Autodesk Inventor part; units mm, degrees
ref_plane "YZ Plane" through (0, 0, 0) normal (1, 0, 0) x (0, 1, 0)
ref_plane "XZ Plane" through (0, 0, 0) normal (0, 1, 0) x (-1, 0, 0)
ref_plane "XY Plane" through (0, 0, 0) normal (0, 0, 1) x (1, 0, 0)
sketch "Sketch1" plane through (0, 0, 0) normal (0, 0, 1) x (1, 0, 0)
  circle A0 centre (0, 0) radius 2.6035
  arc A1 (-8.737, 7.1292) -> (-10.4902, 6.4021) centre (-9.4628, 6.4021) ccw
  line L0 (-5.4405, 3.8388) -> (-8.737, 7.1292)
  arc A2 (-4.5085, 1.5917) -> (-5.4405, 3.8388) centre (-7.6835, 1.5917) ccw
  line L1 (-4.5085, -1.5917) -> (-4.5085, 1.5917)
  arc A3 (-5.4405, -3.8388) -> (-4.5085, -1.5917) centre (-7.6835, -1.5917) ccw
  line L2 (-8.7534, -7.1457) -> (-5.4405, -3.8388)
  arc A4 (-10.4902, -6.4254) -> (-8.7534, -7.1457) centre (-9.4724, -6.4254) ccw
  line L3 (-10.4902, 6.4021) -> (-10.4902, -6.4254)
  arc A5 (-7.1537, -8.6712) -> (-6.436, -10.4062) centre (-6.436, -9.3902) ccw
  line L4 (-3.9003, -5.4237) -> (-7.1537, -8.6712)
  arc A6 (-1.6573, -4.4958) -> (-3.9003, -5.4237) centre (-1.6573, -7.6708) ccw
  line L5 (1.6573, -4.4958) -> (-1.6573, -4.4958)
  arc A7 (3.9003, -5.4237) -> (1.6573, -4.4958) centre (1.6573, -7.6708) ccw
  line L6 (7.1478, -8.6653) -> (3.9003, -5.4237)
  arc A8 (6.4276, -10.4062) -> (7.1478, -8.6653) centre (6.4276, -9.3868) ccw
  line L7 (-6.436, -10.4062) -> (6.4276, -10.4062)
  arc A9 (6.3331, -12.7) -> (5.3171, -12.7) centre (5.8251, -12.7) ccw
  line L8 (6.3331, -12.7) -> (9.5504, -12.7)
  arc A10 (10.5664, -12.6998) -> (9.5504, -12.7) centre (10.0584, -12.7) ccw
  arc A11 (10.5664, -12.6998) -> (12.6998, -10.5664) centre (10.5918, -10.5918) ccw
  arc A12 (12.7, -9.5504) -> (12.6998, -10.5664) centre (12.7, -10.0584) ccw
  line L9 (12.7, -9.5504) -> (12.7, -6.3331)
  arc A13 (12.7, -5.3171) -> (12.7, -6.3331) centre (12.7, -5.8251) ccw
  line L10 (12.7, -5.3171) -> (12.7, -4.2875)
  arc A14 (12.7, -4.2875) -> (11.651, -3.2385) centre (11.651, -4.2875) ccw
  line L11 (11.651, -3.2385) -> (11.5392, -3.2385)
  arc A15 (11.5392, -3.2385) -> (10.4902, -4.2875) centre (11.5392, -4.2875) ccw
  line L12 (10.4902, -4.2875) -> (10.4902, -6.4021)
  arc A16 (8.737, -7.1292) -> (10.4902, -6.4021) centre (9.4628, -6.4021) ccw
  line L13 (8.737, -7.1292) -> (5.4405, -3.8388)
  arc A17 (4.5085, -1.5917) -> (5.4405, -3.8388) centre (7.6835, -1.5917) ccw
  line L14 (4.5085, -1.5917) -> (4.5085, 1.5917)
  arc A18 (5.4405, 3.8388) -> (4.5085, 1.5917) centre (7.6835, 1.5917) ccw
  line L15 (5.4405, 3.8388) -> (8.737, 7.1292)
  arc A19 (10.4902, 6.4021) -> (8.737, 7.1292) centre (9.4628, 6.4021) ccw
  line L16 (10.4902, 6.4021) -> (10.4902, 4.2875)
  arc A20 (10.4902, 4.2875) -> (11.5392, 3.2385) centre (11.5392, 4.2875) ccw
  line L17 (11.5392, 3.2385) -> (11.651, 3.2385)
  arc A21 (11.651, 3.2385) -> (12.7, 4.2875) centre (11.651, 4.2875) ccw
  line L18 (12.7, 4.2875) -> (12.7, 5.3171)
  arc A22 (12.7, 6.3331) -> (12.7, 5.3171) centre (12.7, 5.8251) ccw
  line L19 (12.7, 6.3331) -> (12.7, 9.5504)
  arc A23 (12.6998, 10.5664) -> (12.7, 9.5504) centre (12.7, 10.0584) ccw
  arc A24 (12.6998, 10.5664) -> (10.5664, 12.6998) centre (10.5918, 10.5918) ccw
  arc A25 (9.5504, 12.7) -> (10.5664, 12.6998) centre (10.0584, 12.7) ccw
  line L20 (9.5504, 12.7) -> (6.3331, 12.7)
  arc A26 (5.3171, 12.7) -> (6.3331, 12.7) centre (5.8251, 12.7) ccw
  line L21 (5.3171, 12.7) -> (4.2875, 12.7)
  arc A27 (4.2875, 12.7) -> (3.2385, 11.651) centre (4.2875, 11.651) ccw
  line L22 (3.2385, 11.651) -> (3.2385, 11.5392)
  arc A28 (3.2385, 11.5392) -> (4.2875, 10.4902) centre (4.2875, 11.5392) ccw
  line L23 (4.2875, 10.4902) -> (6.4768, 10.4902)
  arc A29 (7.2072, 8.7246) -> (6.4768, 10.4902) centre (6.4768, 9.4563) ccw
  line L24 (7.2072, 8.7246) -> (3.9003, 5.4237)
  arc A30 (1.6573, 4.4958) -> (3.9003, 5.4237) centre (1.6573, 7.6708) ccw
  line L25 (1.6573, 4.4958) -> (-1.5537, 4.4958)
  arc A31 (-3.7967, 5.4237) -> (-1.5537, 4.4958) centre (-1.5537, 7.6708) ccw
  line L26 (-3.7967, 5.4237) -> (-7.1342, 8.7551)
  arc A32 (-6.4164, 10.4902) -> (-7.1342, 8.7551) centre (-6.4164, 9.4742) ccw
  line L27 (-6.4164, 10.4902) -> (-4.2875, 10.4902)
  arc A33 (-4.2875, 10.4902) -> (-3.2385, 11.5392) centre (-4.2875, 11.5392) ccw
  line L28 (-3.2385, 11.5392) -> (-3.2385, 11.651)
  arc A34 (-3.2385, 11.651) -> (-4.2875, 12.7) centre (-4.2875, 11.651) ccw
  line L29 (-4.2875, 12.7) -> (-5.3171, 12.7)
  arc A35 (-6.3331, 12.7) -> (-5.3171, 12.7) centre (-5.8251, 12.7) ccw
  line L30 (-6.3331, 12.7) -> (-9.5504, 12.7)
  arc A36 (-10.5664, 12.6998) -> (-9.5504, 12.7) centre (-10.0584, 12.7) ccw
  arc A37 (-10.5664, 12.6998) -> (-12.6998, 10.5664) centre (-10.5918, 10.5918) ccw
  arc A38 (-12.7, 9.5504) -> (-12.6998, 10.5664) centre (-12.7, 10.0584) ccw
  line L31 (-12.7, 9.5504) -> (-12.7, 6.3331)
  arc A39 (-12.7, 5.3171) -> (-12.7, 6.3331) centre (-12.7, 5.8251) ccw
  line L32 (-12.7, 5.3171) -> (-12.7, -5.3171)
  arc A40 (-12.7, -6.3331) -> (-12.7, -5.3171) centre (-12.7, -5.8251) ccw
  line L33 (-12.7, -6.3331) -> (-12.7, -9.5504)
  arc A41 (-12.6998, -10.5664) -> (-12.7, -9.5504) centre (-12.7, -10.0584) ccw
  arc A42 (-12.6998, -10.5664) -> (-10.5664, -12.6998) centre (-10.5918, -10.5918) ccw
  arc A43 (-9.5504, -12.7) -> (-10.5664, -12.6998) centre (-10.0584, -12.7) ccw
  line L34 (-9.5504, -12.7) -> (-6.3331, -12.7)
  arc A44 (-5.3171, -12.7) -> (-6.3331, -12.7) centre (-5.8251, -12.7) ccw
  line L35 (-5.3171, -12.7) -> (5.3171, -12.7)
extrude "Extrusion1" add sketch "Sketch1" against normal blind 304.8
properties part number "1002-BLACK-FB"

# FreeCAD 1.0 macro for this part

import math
import FreeCAD as App
import Part
import Sketcher
from FreeCAD import Vector
Q = App.Units.Quantity

doc = App.newDocument("Part")
body = doc.addObject("PartDesign::Body", "Body")

sketch1 = body.newObject("Sketcher::SketchObject", "Sketch")
sketch1.AttachmentSupport = (doc.getObject("XY_Plane"), [""])
sketch1.MapMode = "FlatFace"
sketch1.addGeometry([
    Part.ArcOfCircle(Part.Circle(Vector(5.83, -12.7, 0), Vector(0, 0, 1), 0.51), math.radians(0), math.radians(180)),
    Part.LineSegment(Vector(6.33, -12.7, 0), Vector(9.55, -12.7, 0)),
    Part.ArcOfCircle(Part.Circle(Vector(10.06, -12.7, 0), Vector(0, 0, 1), 0.51), math.radians(0), math.radians(180)),
    Part.ArcOfCircle(Part.Circle(Vector(10.59, -10.59, 0), Vector(0, 0, 1), 2.11), math.radians(-91), math.radians(1)),
    Part.ArcOfCircle(Part.Circle(Vector(12.7, -10.06, 0), Vector(0, 0, 1), 0.51), math.radians(90), math.radians(270)),
    Part.LineSegment(Vector(12.7, -9.55, 0), Vector(12.7, -6.33, 0)),
    Part.ArcOfCircle(Part.Circle(Vector(12.7, -5.83, 0), Vector(0, 0, 1), 0.51), math.radians(90), math.radians(270)),
    Part.LineSegment(Vector(12.7, -5.32, 0), Vector(12.7, -4.29, 0)),
    Part.ArcOfCircle(Part.Circle(Vector(11.65, -4.29, 0), Vector(0, 0, 1), 1.05), math.radians(0), math.radians(90)),
    Part.LineSegment(Vector(11.65, -3.24, 0), Vector(11.54, -3.24, 0)),
    Part.ArcOfCircle(Part.Circle(Vector(11.54, -4.29, 0), Vector(0, 0, 1), 1.05), math.radians(90), math.radians(180)),
    Part.LineSegment(Vector(10.49, -4.29, 0), Vector(10.49, -6.4, 0)),
    Part.ArcOfCircle(Part.Circle(Vector(9.46, -6.4, 0), Vector(0, 0, 1), 1.03), math.radians(-135), math.radians(0)),
    Part.LineSegment(Vector(8.74, -7.13, 0), Vector(5.44, -3.84, 0)),
    Part.ArcOfCircle(Part.Circle(Vector(7.68, -1.59, 0), Vector(0, 0, 1), 3.18), math.radians(180), math.radians(225)),
    Part.LineSegment(Vector(4.51, -1.59, 0), Vector(4.51, 1.59, 0)),
    Part.ArcOfCircle(Part.Circle(Vector(7.68, 1.59, 0), Vector(0, 0, 1), 3.17), math.radians(135), math.radians(180)),
    Part.LineSegment(Vector(5.44, 3.84, 0), Vector(8.74, 7.13, 0)),
    Part.ArcOfCircle(Part.Circle(Vector(9.46, 6.4, 0), Vector(0, 0, 1), 1.03), math.radians(0), math.radians(135)),
    Part.LineSegment(Vector(10.49, 6.4, 0), Vector(10.49, 4.29, 0)),
    Part.ArcOfCircle(Part.Circle(Vector(11.54, 4.29, 0), Vector(0, 0, 1), 1.05), math.radians(180), math.radians(270)),
    Part.LineSegment(Vector(11.54, 3.24, 0), Vector(11.65, 3.24, 0)),
    Part.ArcOfCircle(Part.Circle(Vector(11.65, 4.29, 0), Vector(0, 0, 1), 1.05), math.radians(-90), math.radians(0)),
    Part.LineSegment(Vector(12.7, 4.29, 0), Vector(12.7, 5.32, 0)),
    Part.ArcOfCircle(Part.Circle(Vector(12.7, 5.83, 0), Vector(0, 0, 1), 0.51), math.radians(90), math.radians(270)),
    Part.LineSegment(Vector(12.7, 6.33, 0), Vector(12.7, 9.55, 0)),
    Part.ArcOfCircle(Part.Circle(Vector(12.7, 10.06, 0), Vector(0, 0, 1), 0.51), math.radians(90), math.radians(270)),
    Part.ArcOfCircle(Part.Circle(Vector(10.59, 10.59, 0), Vector(0, 0, 1), 2.11), math.radians(-1), math.radians(91)),
    Part.ArcOfCircle(Part.Circle(Vector(10.06, 12.7, 0), Vector(0, 0, 1), 0.51), math.radians(180), math.radians(360)),
    Part.LineSegment(Vector(9.55, 12.7, 0), Vector(6.33, 12.7, 0)),
    Part.ArcOfCircle(Part.Circle(Vector(5.83, 12.7, 0), Vector(0, 0, 1), 0.51), math.radians(180), math.radians(360)),
    Part.LineSegment(Vector(5.32, 12.7, 0), Vector(4.29, 12.7, 0)),
    Part.ArcOfCircle(Part.Circle(Vector(4.29, 11.65, 0), Vector(0, 0, 1), 1.05), math.radians(90), math.radians(180)),
    Part.LineSegment(Vector(3.24, 11.65, 0), Vector(3.24, 11.54, 0)),
    Part.ArcOfCircle(Part.Circle(Vector(4.29, 11.54, 0), Vector(0, 0, 1), 1.05), math.radians(180), math.radians(270)),
    Part.LineSegment(Vector(4.29, 10.49, 0), Vector(6.48, 10.49, 0)),
    Part.ArcOfCircle(Part.Circle(Vector(6.48, 9.46, 0), Vector(0, 0, 1), 1.03), math.radians(-45), math.radians(90)),
    Part.LineSegment(Vector(7.21, 8.72, 0), Vector(3.9, 5.42, 0)),
    Part.ArcOfCircle(Part.Circle(Vector(1.66, 7.67, 0), Vector(0, 0, 1), 3.17), math.radians(-90), math.radians(-45)),
    Part.LineSegment(Vector(1.66, 4.5, 0), Vector(-1.55, 4.5, 0)),
    Part.ArcOfCircle(Part.Circle(Vector(-1.55, 7.67, 0), Vector(0, 0, 1), 3.17), math.radians(-135), math.radians(-90)),
    Part.LineSegment(Vector(-3.8, 5.42, 0), Vector(-7.13, 8.76, 0)),
    Part.ArcOfCircle(Part.Circle(Vector(-6.42, 9.47, 0), Vector(0, 0, 1), 1.02), math.radians(90), math.radians(225)),
    Part.LineSegment(Vector(-6.42, 10.49, 0), Vector(-4.29, 10.49, 0)),
    Part.ArcOfCircle(Part.Circle(Vector(-4.29, 11.54, 0), Vector(0, 0, 1), 1.05), math.radians(-90), math.radians(0)),
    Part.LineSegment(Vector(-3.24, 11.54, 0), Vector(-3.24, 11.65, 0)),
    Part.ArcOfCircle(Part.Circle(Vector(-4.29, 11.65, 0), Vector(0, 0, 1), 1.05), math.radians(0), math.radians(90)),
    Part.LineSegment(Vector(-4.29, 12.7, 0), Vector(-5.32, 12.7, 0)),
    Part.ArcOfCircle(Part.Circle(Vector(-5.83, 12.7, 0), Vector(0, 0, 1), 0.51), math.radians(180), math.radians(360)),
    Part.LineSegment(Vector(-6.33, 12.7, 0), Vector(-9.55, 12.7, 0)),
    Part.ArcOfCircle(Part.Circle(Vector(-10.06, 12.7, 0), Vector(0, 0, 1), 0.51), math.radians(-180), math.radians(0)),
    Part.ArcOfCircle(Part.Circle(Vector(-10.59, 10.59, 0), Vector(0, 0, 1), 2.11), math.radians(89), math.radians(181)),
    Part.ArcOfCircle(Part.Circle(Vector(-12.7, 10.06, 0), Vector(0, 0, 1), 0.51), math.radians(-90), math.radians(90)),
    Part.LineSegment(Vector(-12.7, 9.55, 0), Vector(-12.7, 6.33, 0)),
    Part.ArcOfCircle(Part.Circle(Vector(-12.7, 5.83, 0), Vector(0, 0, 1), 0.51), math.radians(-90), math.radians(90)),
    Part.LineSegment(Vector(-12.7, 5.32, 0), Vector(-12.7, -5.32, 0)),
    Part.ArcOfCircle(Part.Circle(Vector(-12.7, -5.83, 0), Vector(0, 0, 1), 0.51), math.radians(-90), math.radians(90)),
    Part.LineSegment(Vector(-12.7, -6.33, 0), Vector(-12.7, -9.55, 0)),
    Part.ArcOfCircle(Part.Circle(Vector(-12.7, -10.06, 0), Vector(0, 0, 1), 0.51), math.radians(-90), math.radians(90)),
    Part.ArcOfCircle(Part.Circle(Vector(-10.59, -10.59, 0), Vector(0, 0, 1), 2.11), math.radians(179), math.radians(271)),
    Part.ArcOfCircle(Part.Circle(Vector(-10.06, -12.7, 0), Vector(0, 0, 1), 0.51), math.radians(0), math.radians(180)),
    Part.LineSegment(Vector(-9.55, -12.7, 0), Vector(-6.33, -12.7, 0)),
    Part.ArcOfCircle(Part.Circle(Vector(-5.83, -12.7, 0), Vector(0, 0, 1), 0.51), math.radians(0), math.radians(180)),
    Part.LineSegment(Vector(-5.32, -12.7, 0), Vector(5.32, -12.7, 0)),
    Part.ArcOfCircle(Part.Circle(Vector(-6.44, -9.39, 0), Vector(0, 0, 1), 1.02), math.radians(135), math.radians(270)),
    Part.LineSegment(Vector(-7.15, -8.67, 0), Vector(-3.9, -5.42, 0)),
    Part.ArcOfCircle(Part.Circle(Vector(-1.66, -7.67, 0), Vector(0, 0, 1), 3.17), math.radians(90), math.radians(135)),
    Part.LineSegment(Vector(-1.66, -4.5, 0), Vector(1.66, -4.5, 0)),
    Part.ArcOfCircle(Part.Circle(Vector(1.66, -7.67, 0), Vector(0, 0, 1), 3.17), math.radians(45), math.radians(90)),
    Part.LineSegment(Vector(3.9, -5.42, 0), Vector(7.15, -8.67, 0)),
    Part.ArcOfCircle(Part.Circle(Vector(6.43, -9.39, 0), Vector(0, 0, 1), 1.02), math.radians(-90), math.radians(45)),
    Part.LineSegment(Vector(6.43, -10.41, 0), Vector(-6.44, -10.41, 0)),
    Part.ArcOfCircle(Part.Circle(Vector(-9.46, 6.4, 0), Vector(0, 0, 1), 1.03), math.radians(45), math.radians(180)),
    Part.LineSegment(Vector(-8.74, 7.13, 0), Vector(-5.44, 3.84, 0)),
    Part.ArcOfCircle(Part.Circle(Vector(-7.68, 1.59, 0), Vector(0, 0, 1), 3.18), math.radians(0), math.radians(45)),
    Part.LineSegment(Vector(-4.51, 1.59, 0), Vector(-4.51, -1.59, 0)),
    Part.ArcOfCircle(Part.Circle(Vector(-7.68, -1.59, 0), Vector(0, 0, 1), 3.17), math.radians(-45), math.radians(0)),
    Part.LineSegment(Vector(-5.44, -3.84, 0), Vector(-8.75, -7.15, 0)),
    Part.ArcOfCircle(Part.Circle(Vector(-9.47, -6.43, 0), Vector(0, 0, 1), 1.02), math.radians(180), math.radians(315)),
    Part.LineSegment(Vector(-10.49, -6.43, 0), Vector(-10.49, 6.4, 0)),
    Part.Circle(Vector(0, 0, 0), Vector(0, 0, 1), 2.6),
], False)
sketch1.addConstraint([
    Sketcher.Constraint("Coincident", 0, 1, 1, 1),
    Sketcher.Constraint("Coincident", 1, 2, 2, 2),
    Sketcher.Constraint("Coincident", 2, 1, 3, 1),
    Sketcher.Constraint("Coincident", 3, 2, 4, 2),
    Sketcher.Constraint("Coincident", 4, 1, 5, 1),
    Sketcher.Constraint("Coincident", 5, 2, 6, 2),
    Sketcher.Constraint("Coincident", 6, 1, 7, 1),
    Sketcher.Constraint("Tangent", 7, 2, 8, 1),
    Sketcher.Constraint("Tangent", 8, 2, 9, 1),
    Sketcher.Constraint("Tangent", 9, 2, 10, 1),
    Sketcher.Constraint("Tangent", 10, 2, 11, 1),
    Sketcher.Constraint("Tangent", 11, 2, 12, 2),
    Sketcher.Constraint("Tangent", 12, 1, 13, 1),
    Sketcher.Constraint("Tangent", 13, 2, 14, 2),
    Sketcher.Constraint("Tangent", 14, 1, 15, 1),
    Sketcher.Constraint("Tangent", 15, 2, 16, 2),
    Sketcher.Constraint("Tangent", 16, 1, 17, 1),
    Sketcher.Constraint("Tangent", 17, 2, 18, 2),
    Sketcher.Constraint("Tangent", 18, 1, 19, 1),
    Sketcher.Constraint("Tangent", 19, 2, 20, 1),
    Sketcher.Constraint("Tangent", 20, 2, 21, 1),
    Sketcher.Constraint("Tangent", 21, 2, 22, 1),
    Sketcher.Constraint("Tangent", 22, 2, 23, 1),
    Sketcher.Constraint("Coincident", 23, 2, 24, 2),
    Sketcher.Constraint("Coincident", 24, 1, 25, 1),
    Sketcher.Constraint("Coincident", 25, 2, 26, 2),
    Sketcher.Constraint("Coincident", 26, 1, 27, 1),
    Sketcher.Constraint("Coincident", 27, 2, 28, 2),
    Sketcher.Constraint("Coincident", 28, 1, 29, 1),
    Sketcher.Constraint("Coincident", 29, 2, 30, 2),
    Sketcher.Constraint("Coincident", 30, 1, 31, 1),
    Sketcher.Constraint("Tangent", 31, 2, 32, 1),
    Sketcher.Constraint("Tangent", 32, 2, 33, 1),
    Sketcher.Constraint("Tangent", 33, 2, 34, 1),
    Sketcher.Constraint("Tangent", 34, 2, 35, 1),
    Sketcher.Constraint("Tangent", 35, 2, 36, 2),
    Sketcher.Constraint("Tangent", 36, 1, 37, 1),
    Sketcher.Constraint("Tangent", 37, 2, 38, 2),
    Sketcher.Constraint("Tangent", 38, 1, 39, 1),
    Sketcher.Constraint("Tangent", 39, 2, 40, 2),
    Sketcher.Constraint("Tangent", 40, 1, 41, 1),
    Sketcher.Constraint("Tangent", 41, 2, 42, 2),
    Sketcher.Constraint("Tangent", 42, 1, 43, 1),
    Sketcher.Constraint("Tangent", 43, 2, 44, 1),
    Sketcher.Constraint("Tangent", 44, 2, 45, 1),
    Sketcher.Constraint("Tangent", 45, 2, 46, 1),
    Sketcher.Constraint("Tangent", 46, 2, 47, 1),
    Sketcher.Constraint("Coincident", 47, 2, 48, 2),
    Sketcher.Constraint("Coincident", 48, 1, 49, 1),
    Sketcher.Constraint("Coincident", 49, 2, 50, 2),
    Sketcher.Constraint("Coincident", 50, 1, 51, 1),
    Sketcher.Constraint("Coincident", 51, 2, 52, 2),
    Sketcher.Constraint("Coincident", 52, 1, 53, 1),
    Sketcher.Constraint("Coincident", 53, 2, 54, 2),
    Sketcher.Constraint("Coincident", 54, 1, 55, 1),
    Sketcher.Constraint("Coincident", 55, 2, 56, 2),
    Sketcher.Constraint("Coincident", 56, 1, 57, 1),
    Sketcher.Constraint("Coincident", 57, 2, 58, 2),
    Sketcher.Constraint("Coincident", 58, 1, 59, 1),
    Sketcher.Constraint("Coincident", 59, 2, 60, 2),
    Sketcher.Constraint("Coincident", 60, 1, 61, 1),
    Sketcher.Constraint("Coincident", 61, 2, 62, 2),
    Sketcher.Constraint("Coincident", 62, 1, 63, 1),
    Sketcher.Constraint("Coincident", 63, 2, 0, 2),
    Sketcher.Constraint("Tangent", 64, 1, 65, 1),
    Sketcher.Constraint("Tangent", 65, 2, 66, 2),
    Sketcher.Constraint("Tangent", 66, 1, 67, 1),
    Sketcher.Constraint("Tangent", 67, 2, 68, 2),
    Sketcher.Constraint("Tangent", 68, 1, 69, 1),
    Sketcher.Constraint("Tangent", 69, 2, 70, 2),
    Sketcher.Constraint("Tangent", 70, 1, 71, 1),
    Sketcher.Constraint("Tangent", 71, 2, 64, 2),
    Sketcher.Constraint("Tangent", 72, 1, 73, 1),
    Sketcher.Constraint("Tangent", 73, 2, 74, 2),
    Sketcher.Constraint("Tangent", 74, 1, 75, 1),
    Sketcher.Constraint("Tangent", 75, 2, 76, 2),
    Sketcher.Constraint("Tangent", 76, 1, 77, 1),
    Sketcher.Constraint("Tangent", 77, 2, 78, 2),
    Sketcher.Constraint("Tangent", 78, 1, 79, 1),
    Sketcher.Constraint("Tangent", 79, 2, 72, 2),
    Sketcher.Constraint("Horizontal", 1),
    Sketcher.Constraint("Vertical", 5),
    Sketcher.Constraint("Vertical", 7),
    Sketcher.Constraint("Horizontal", 9),
    Sketcher.Constraint("Vertical", 11),
    Sketcher.Constraint("Vertical", 15),
    Sketcher.Constraint("Vertical", 19),
    Sketcher.Constraint("Horizontal", 21),
    Sketcher.Constraint("Vertical", 23),
    Sketcher.Constraint("Vertical", 25),
    Sketcher.Constraint("Horizontal", 29),
    Sketcher.Constraint("Horizontal", 31),
    Sketcher.Constraint("Vertical", 33),
    Sketcher.Constraint("Horizontal", 35),
    Sketcher.Constraint("Horizontal", 39),
    Sketcher.Constraint("Horizontal", 43),
    Sketcher.Constraint("Vertical", 45),
    Sketcher.Constraint("Horizontal", 47),
    Sketcher.Constraint("Horizontal", 49),
    Sketcher.Constraint("Vertical", 53),
    Sketcher.Constraint("Vertical", 55),
    Sketcher.Constraint("Vertical", 57),
    Sketcher.Constraint("Horizontal", 61),
    Sketcher.Constraint("Horizontal", 63),
    Sketcher.Constraint("Horizontal", 67),
    Sketcher.Constraint("Horizontal", 71),
    Sketcher.Constraint("Vertical", 75),
    Sketcher.Constraint("Vertical", 79),
    Sketcher.Constraint("Coincident", 80, 3, -1, 1),
    Sketcher.Constraint("Equal", 0, 2),
    Sketcher.Constraint("Equal", 2, 4),
    Sketcher.Constraint("Equal", 4, 6),
    Sketcher.Constraint("Equal", 8, 10),
    Sketcher.Constraint("Equal", 14, 16),
    Sketcher.Constraint("Equal", 12, 18),
    Sketcher.Constraint("Equal", 10, 20),
    Sketcher.Constraint("Equal", 20, 22),
    Sketcher.Constraint("Equal", 6, 24),
    Sketcher.Constraint("Equal", 24, 26),
    Sketcher.Constraint("Equal", 3, 27),
    Sketcher.Constraint("Equal", 26, 28),
    Sketcher.Constraint("Equal", 28, 30),
    Sketcher.Constraint("Equal", 22, 32),
    Sketcher.Constraint("Equal", 32, 34),
    Sketcher.Constraint("Equal", 16, 38),
    Sketcher.Constraint("Equal", 38, 40),
    Sketcher.Constraint("Equal", 34, 44),
    Sketcher.Constraint("Equal", 44, 46),
    Sketcher.Constraint("Equal", 30, 48),
    Sketcher.Constraint("Equal", 48, 50),
    Sketcher.Constraint("Equal", 27, 51),
    Sketcher.Constraint("Equal", 50, 52),
    Sketcher.Constraint("Equal", 52, 54),
    Sketcher.Constraint("Equal", 54, 56),
    Sketcher.Constraint("Equal", 56, 58),
    Sketcher.Constraint("Equal", 51, 59),
    Sketcher.Constraint("Equal", 58, 60),
    Sketcher.Constraint("Equal", 60, 62),
    Sketcher.Constraint("Equal", 42, 64),
    Sketcher.Constraint("Equal", 40, 66),
    Sketcher.Constraint("Equal", 66, 68),
    Sketcher.Constraint("Equal", 18, 72),
    Sketcher.Constraint("Equal", 68, 74),
    Sketcher.Constraint("Equal", 74, 76),
    Sketcher.Constraint("Symmetric", 0, 3, 48, 3, -1, 1),
    Sketcher.Constraint("Symmetric", 2, 3, 50, 3, -1, 1),
    Sketcher.Constraint("Symmetric", 3, 3, 51, 3, -1, 1),
    Sketcher.Constraint("Symmetric", 4, 3, 52, 3, -1, 1),
    Sketcher.Constraint("Symmetric", 6, 3, 54, 3, -1, 1),
    Sketcher.Constraint("Symmetric", 24, 3, 56, 3, -1, 1),
    Sketcher.Constraint("Symmetric", 26, 3, 58, 3, -1, 1),
    Sketcher.Constraint("Symmetric", 27, 3, 59, 3, -1, 1),
    Sketcher.Constraint("Symmetric", 28, 3, 60, 3, -1, 1),
    Sketcher.Constraint("Symmetric", 30, 3, 62, 3, -1, 1),
    Sketcher.Constraint("Symmetric", 38, 3, 66, 3, -1, 1),
    Sketcher.Constraint("Symmetric", 12, 3, 72, 3, -1, 1),
    Sketcher.Constraint("Symmetric", 14, 3, 74, 3, -1, 1),
    Sketcher.Constraint("Symmetric", 16, 1, 76, 1, -1, 1),
    Sketcher.Constraint("Symmetric", 34, 3, 44, 3, -2),
    Sketcher.Constraint("Symmetric", 30, 3, 48, 3, -2),
    Sketcher.Constraint("Symmetric", 28, 3, 50, 3, -2),
    Sketcher.Constraint("Symmetric", 27, 3, 51, 3, -2),
    Sketcher.Constraint("Symmetric", 26, 3, 52, 3, -2),
    Sketcher.Constraint("Symmetric", 24, 3, 54, 3, -2),
    Sketcher.Constraint("Symmetric", 18, 3, 72, 3, -2),
    Sketcher.Constraint("Symmetric", 65, 2, 68, 1, -2),
    Sketcher.Constraint("Symmetric", 8, 3, 22, 3, -1),
    Sketcher.Constraint("Parallel", 17, 37),
    Sketcher.Constraint("Parallel", 13, 41),
    Sketcher.Constraint("Parallel", 37, 65),
    Sketcher.Constraint("Parallel", 41, 69),
    Sketcher.Constraint("Horizontal", 0, 3, 2, 3),
    Sketcher.Constraint("Horizontal", 32, 3, 46, 3),
    Sketcher.Constraint("Horizontal", 62, 3, 0, 1),
    Sketcher.Constraint("Horizontal", 1, 2, 2, 1),
    Sketcher.Constraint("Horizontal", 27, 2, 28, 1),
    Sketcher.Constraint("Horizontal", 29, 2, 30, 1),
    Sketcher.Constraint("Horizontal", 47, 2, 48, 1),
    Sketcher.Constraint("Horizontal", 59, 2, 60, 1),
    Sketcher.Constraint("Horizontal", 61, 2, 62, 1),
    Sketcher.Constraint("Vertical", 4, 3, 6, 3),
    Sketcher.Constraint("Vertical", 26, 3, 3, 2),
    Sketcher.Constraint("Vertical", 3, 2, 4, 1),
    Sketcher.Constraint("Vertical", 5, 2, 6, 1),
    Sketcher.Constraint("Vertical", 23, 2, 24, 1),
    Sketcher.Constraint("Vertical", 51, 2, 52, 1),
    Sketcher.Constraint("Vertical", 53, 2, 54, 1),
    Sketcher.Constraint("Vertical", 55, 2, 56, 1),
    Sketcher.Constraint("Equal", 61, 5),
    Sketcher.Constraint("Equal", 47, 7),
    Sketcher.Constraint("Equal", 21, 33),
    Sketcher.Constraint("Equal", 63, 55),
    Sketcher.Constraint("Radius", 0, Q("0.02 in")),
    Sketcher.Constraint("Radius", 42, Q("0.04 in")),
    Sketcher.Constraint("Diameter", 80, Q("0.205 in")),
    Sketcher.Constraint("Radius", 3, Q("0.083 in")),
    Sketcher.Constraint("Radius", 14, Q("0.125 in")),
    Sketcher.Constraint("DistanceY", 0, 3, -1, 1, Q("0.5 in")),
    Sketcher.Constraint("DistanceX", -1, 1, 4, 3, Q("0.5 in")),
    Sketcher.Constraint("Radius", 8, Q("0.0413 in")),
    Sketcher.Constraint("Radius", 36, Q("0.0407 in")),
    Sketcher.Constraint("Radius", 12, 1.0274),
    Sketcher.Constraint("Radius", 70, 1.0194),
    Sketcher.Constraint("Radius", 78, 1.0178),
    Sketcher.Constraint("DistanceX", 9, 2, 9, 1, Q("0.0044 in")),
    Sketcher.Constraint("DistanceX", 35, 1, 35, 2, Q("0.0862 in")),
    Sketcher.Constraint("DistanceX", 67, 1, 67, 2, Q("0.1305 in")),
    Sketcher.Constraint("DistanceX", -1, 1, 2, 3, Q("0.396 in")),
    Sketcher.Constraint("DistanceX", -1, 1, 36, 3, Q("0.255 in")),
    Sketcher.Constraint("DistanceY", -1, 1, 38, 3, Q("0.302 in")),
    Sketcher.Constraint("DistanceX", 1, 1, 1, 2, 3.2173),
    Sketcher.Constraint("DistanceX", 39, 2, 39, 1, 3.211),
    Sketcher.Constraint("DistanceX", 71, 2, 71, 1, 12.8636),
    Sketcher.Constraint("DistanceY", 11, 2, 11, 1, 2.1146),
    Sketcher.Constraint("DistanceY", 15, 1, 15, 2, 3.1834),
])
pad1 = body.newObject("PartDesign::Pad", "Pad")
pad1.Profile = sketch1
pad1.Length = Q("12 in")
pad1.Reversed = True

doc.recompute()
